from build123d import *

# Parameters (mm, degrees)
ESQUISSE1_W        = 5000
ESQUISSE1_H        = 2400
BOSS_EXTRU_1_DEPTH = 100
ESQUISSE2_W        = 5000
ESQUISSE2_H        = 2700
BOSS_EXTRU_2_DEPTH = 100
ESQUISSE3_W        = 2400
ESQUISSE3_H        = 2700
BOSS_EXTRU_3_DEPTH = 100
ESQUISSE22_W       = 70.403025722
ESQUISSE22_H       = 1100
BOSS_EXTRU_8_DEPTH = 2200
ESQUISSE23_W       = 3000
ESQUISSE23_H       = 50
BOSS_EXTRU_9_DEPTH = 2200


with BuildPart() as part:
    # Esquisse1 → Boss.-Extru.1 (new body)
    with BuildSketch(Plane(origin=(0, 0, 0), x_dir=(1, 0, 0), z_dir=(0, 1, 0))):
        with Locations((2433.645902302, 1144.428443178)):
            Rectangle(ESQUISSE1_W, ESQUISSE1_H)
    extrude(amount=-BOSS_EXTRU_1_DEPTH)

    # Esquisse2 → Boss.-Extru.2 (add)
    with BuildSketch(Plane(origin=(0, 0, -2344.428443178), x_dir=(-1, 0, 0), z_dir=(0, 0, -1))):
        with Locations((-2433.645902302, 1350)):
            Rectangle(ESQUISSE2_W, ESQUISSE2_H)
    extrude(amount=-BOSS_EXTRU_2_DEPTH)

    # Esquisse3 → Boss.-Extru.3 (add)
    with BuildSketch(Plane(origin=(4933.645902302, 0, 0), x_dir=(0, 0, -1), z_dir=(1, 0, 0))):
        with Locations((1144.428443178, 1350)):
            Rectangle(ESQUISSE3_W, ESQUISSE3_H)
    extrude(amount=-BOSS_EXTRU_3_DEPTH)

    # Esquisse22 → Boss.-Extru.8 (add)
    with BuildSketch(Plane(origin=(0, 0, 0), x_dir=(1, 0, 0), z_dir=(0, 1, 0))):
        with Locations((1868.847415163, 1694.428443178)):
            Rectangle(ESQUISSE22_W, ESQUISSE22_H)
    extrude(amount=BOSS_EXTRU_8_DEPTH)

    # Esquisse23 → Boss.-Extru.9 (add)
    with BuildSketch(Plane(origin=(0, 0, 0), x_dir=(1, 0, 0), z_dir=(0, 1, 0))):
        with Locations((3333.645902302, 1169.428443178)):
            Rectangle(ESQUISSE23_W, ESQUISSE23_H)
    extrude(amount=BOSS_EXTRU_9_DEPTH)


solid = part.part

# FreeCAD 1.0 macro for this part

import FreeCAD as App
import Part
import Sketcher
Q = App.Units.Quantity


def add_polygon(sketch, points):
    """Adds a closed chain of lines whose ends are joined by coincident constraints."""
    first, n = sketch.GeometryCount, len(points)
    for a, b in zip(points, points[1:] + points[:1]):
        sketch.addGeometry(Part.LineSegment(App.Vector(*a, 0), App.Vector(*b, 0)), False)
    for i in range(n):
        sketch.addConstraint(Sketcher.Constraint("Coincident", first + i, 2, first + (i + 1) % n, 1))

doc = App.newDocument("Part")
params = doc.addObject("Spreadsheet::Sheet", "Params")
for row, (alias, value) in enumerate([
    ("sketch1_width", "5000 mm"),
    ("sketch1_height", "2400 mm"),
    ("pad1_length", "100 mm"),
    ("sketch2_width", "5000 mm"),
    ("sketch2_height", "2700 mm"),
    ("pad2_length", "100 mm"),
    ("sketch3_width", "2700 mm"),
    ("sketch3_height", "2400 mm"),
    ("pad3_length", "100 mm"),
    ("sketch4_height", "1100 mm"),
    ("pad4_length", "2200 mm"),
    ("sketch5_width", "3000 mm"),
    ("sketch5_height", "50 mm"),
    ("pad5_length", "2200 mm"),
], start=1):
    params.set(f"A{row}", alias)
    params.set(f"B{row}", "=" + value)
    params.setAlias(f"B{row}", alias)

body = doc.addObject("PartDesign::Body", "Body")

# Sketch on XZ plane
sketch1 = body.newObject("Sketcher::SketchObject", "Sketch")
sketch1.AttachmentSupport = (doc.getObject("XZ_Plane"), [""])
sketch1.MapMode = "FlatFace"
add_polygon(sketch1, [(-66, -2344), (-66, 56), (4934, 56), (4934, -2344)])  # lines 0-3
sketch1.addConstraint(Sketcher.Constraint("Vertical", 0))
sketch1.addConstraint(Sketcher.Constraint("Horizontal", 1))
sketch1.addConstraint(Sketcher.Constraint("Vertical", 2))
sketch1.addConstraint(Sketcher.Constraint("Horizontal", 3))
sketch1.addConstraint(Sketcher.Constraint("DistanceX", 1, 1, 1, 2, Q("5000 mm")))
sketch1.addConstraint(Sketcher.Constraint("DistanceY", 0, 1, 0, 2, Q("2400 mm")))
sketch1.addConstraint(Sketcher.Constraint("DistanceX", 0, 2, -1, 1, Q("66.354098 mm")))
sketch1.addConstraint(Sketcher.Constraint("DistanceY", -1, 1, 0, 2, Q("55.571557 mm")))
sketch1.setExpression("Constraints[8]", "Params.sketch1_width")
sketch1.setExpression("Constraints[9]", "Params.sketch1_height")
pad1 = body.newObject("PartDesign::Pad", "Pad")
pad1.Profile = sketch1
pad1.setExpression("Length", "Params.pad1_length")

# Sketch on XY plane
sketch2 = body.newObject("Sketcher::SketchObject", "Sketch001")
sketch2.AttachmentSupport = (doc.getObject("XY_Plane"), [""])
sketch2.MapMode = "FlatFace"
sketch2.AttachmentOffset = App.Placement(App.Vector(0, 0, -2344.428443), App.Rotation())
add_polygon(sketch2, [(4934, 2700), (4934, 0), (-66, 0), (-66, 2700)])  # lines 0-3
sketch2.addConstraint(Sketcher.Constraint("Vertical", 0))
sketch2.addConstraint(Sketcher.Constraint("Horizontal", 1))
sketch2.addConstraint(Sketcher.Constraint("Vertical", 2))
sketch2.addConstraint(Sketcher.Constraint("Horizontal", 3))
sketch2.addConstraint(Sketcher.Constraint("PointOnObject", 0, 2, -1))
sketch2.addConstraint(Sketcher.Constraint("DistanceX", 1, 2, 1, 1, Q("5000 mm")))
sketch2.addConstraint(Sketcher.Constraint("DistanceY", 0, 2, 0, 1, Q("2700 mm")))
sketch2.addConstraint(Sketcher.Constraint("DistanceX", -1, 1, 0, 2, Q("4933.645902 mm")))
sketch2.setExpression("Constraints[9]", "Params.sketch2_width")
sketch2.setExpression("Constraints[10]", "Params.sketch2_height")
pad2 = body.newObject("PartDesign::Pad", "Pad001")
pad2.Profile = sketch2
pad2.setExpression("Length", "Params.pad2_length")

# Sketch on YZ plane
sketch3 = body.newObject("Sketcher::SketchObject", "Sketch002")
sketch3.AttachmentSupport = (doc.getObject("YZ_Plane"), [""])
sketch3.MapMode = "FlatFace"
sketch3.AttachmentOffset = App.Placement(App.Vector(0, 0, 4933.645902), App.Rotation())
add_polygon(sketch3, [(2700, 56), (0, 56), (0, -2344), (2700, -2344)])  # lines 0-3
sketch3.addConstraint(Sketcher.Constraint("Horizontal", 0))
sketch3.addConstraint(Sketcher.Constraint("Vertical", 1))
sketch3.addConstraint(Sketcher.Constraint("Horizontal", 2))
sketch3.addConstraint(Sketcher.Constraint("Vertical", 3))
sketch3.addConstraint(Sketcher.Constraint("PointOnObject", 0, 2, -2))
sketch3.addConstraint(Sketcher.Constraint("DistanceX", 0, 2, 0, 1, Q("2700 mm")))
sketch3.addConstraint(Sketcher.Constraint("DistanceY", 1, 2, 1, 1, Q("2400 mm")))
sketch3.addConstraint(Sketcher.Constraint("DistanceY", -1, 1, 0, 2, Q("55.571557 mm")))
sketch3.setExpression("Constraints[9]", "Params.sketch3_width")
sketch3.setExpression("Constraints[10]", "Params.sketch3_height")
pad3 = body.newObject("PartDesign::Pad", "Pad002")
pad3.Profile = sketch3
pad3.setExpression("Length", "Params.pad3_length")
pad3.Reversed = True

# Sketch on XZ plane
sketch4 = body.newObject("Sketcher::SketchObject", "Sketch003")
sketch4.AttachmentSupport = (doc.getObject("XZ_Plane"), [""])
sketch4.MapMode = "FlatFace"
add_polygon(sketch4, [(1834, -2244), (1834, -1144), (1904, -1144), (1904, -2244)])  # lines 0-3
sketch4.addConstraint(Sketcher.Constraint("Vertical", 0))
sketch4.addConstraint(Sketcher.Constraint("Horizontal", 1))
sketch4.addConstraint(Sketcher.Constraint("Vertical", 2))
sketch4.addConstraint(Sketcher.Constraint("Horizontal", 3))
sketch4.addConstraint(Sketcher.Constraint("DistanceY", 0, 1, 0, 2, Q("1100 mm")))
sketch4.addConstraint(Sketcher.Constraint("DistanceX", 1, 1, 1, 2, Q("70.403026 mm")))
sketch4.addConstraint(Sketcher.Constraint("DistanceX", -1, 1, 1, 2, Q("1904.048928 mm")))
sketch4.addConstraint(Sketcher.Constraint("DistanceY", 0, 2, -1, 1, Q("1144.428443 mm")))
sketch4.setExpression("Constraints[8]", "Params.sketch4_height")
pad4 = body.newObject("PartDesign::Pad", "Pad003")
pad4.Profile = sketch4
pad4.setExpression("Length", "Params.pad4_length")
pad4.Reversed = True

# Sketch on XZ plane
sketch5 = body.newObject("Sketcher::SketchObject", "Sketch004")
sketch5.AttachmentSupport = (doc.getObject("XZ_Plane"), [""])
sketch5.MapMode = "FlatFace"
add_polygon(sketch5, [(1834, -1194), (1834, -1144), (4834, -1144), (4834, -1194)])  # lines 0-3
sketch5.addConstraint(Sketcher.Constraint("Vertical", 0))
sketch5.addConstraint(Sketcher.Constraint("Horizontal", 1))
sketch5.addConstraint(Sketcher.Constraint("Vertical", 2))
sketch5.addConstraint(Sketcher.Constraint("Horizontal", 3))
sketch5.addConstraint(Sketcher.Constraint("DistanceX", 1, 1, 1, 2, Q("3000 mm")))
sketch5.addConstraint(Sketcher.Constraint("DistanceY", 0, 1, 0, 2, Q("50 mm")))
sketch5.addConstraint(Sketcher.Constraint("DistanceX", -1, 1, 0, 2, Q("1833.645902 mm")))
sketch5.addConstraint(Sketcher.Constraint("DistanceY", 0, 2, -1, 1, Q("1144.428443 mm")))
sketch5.setExpression("Constraints[8]", "Params.sketch5_width")
sketch5.setExpression("Constraints[9]", "Params.sketch5_height")
pad5 = body.newObject("PartDesign::Pad", "Pad004")
pad5.Profile = sketch5
pad5.setExpression("Length", "Params.pad5_length")
pad5.Reversed = True

doc.recompute()
